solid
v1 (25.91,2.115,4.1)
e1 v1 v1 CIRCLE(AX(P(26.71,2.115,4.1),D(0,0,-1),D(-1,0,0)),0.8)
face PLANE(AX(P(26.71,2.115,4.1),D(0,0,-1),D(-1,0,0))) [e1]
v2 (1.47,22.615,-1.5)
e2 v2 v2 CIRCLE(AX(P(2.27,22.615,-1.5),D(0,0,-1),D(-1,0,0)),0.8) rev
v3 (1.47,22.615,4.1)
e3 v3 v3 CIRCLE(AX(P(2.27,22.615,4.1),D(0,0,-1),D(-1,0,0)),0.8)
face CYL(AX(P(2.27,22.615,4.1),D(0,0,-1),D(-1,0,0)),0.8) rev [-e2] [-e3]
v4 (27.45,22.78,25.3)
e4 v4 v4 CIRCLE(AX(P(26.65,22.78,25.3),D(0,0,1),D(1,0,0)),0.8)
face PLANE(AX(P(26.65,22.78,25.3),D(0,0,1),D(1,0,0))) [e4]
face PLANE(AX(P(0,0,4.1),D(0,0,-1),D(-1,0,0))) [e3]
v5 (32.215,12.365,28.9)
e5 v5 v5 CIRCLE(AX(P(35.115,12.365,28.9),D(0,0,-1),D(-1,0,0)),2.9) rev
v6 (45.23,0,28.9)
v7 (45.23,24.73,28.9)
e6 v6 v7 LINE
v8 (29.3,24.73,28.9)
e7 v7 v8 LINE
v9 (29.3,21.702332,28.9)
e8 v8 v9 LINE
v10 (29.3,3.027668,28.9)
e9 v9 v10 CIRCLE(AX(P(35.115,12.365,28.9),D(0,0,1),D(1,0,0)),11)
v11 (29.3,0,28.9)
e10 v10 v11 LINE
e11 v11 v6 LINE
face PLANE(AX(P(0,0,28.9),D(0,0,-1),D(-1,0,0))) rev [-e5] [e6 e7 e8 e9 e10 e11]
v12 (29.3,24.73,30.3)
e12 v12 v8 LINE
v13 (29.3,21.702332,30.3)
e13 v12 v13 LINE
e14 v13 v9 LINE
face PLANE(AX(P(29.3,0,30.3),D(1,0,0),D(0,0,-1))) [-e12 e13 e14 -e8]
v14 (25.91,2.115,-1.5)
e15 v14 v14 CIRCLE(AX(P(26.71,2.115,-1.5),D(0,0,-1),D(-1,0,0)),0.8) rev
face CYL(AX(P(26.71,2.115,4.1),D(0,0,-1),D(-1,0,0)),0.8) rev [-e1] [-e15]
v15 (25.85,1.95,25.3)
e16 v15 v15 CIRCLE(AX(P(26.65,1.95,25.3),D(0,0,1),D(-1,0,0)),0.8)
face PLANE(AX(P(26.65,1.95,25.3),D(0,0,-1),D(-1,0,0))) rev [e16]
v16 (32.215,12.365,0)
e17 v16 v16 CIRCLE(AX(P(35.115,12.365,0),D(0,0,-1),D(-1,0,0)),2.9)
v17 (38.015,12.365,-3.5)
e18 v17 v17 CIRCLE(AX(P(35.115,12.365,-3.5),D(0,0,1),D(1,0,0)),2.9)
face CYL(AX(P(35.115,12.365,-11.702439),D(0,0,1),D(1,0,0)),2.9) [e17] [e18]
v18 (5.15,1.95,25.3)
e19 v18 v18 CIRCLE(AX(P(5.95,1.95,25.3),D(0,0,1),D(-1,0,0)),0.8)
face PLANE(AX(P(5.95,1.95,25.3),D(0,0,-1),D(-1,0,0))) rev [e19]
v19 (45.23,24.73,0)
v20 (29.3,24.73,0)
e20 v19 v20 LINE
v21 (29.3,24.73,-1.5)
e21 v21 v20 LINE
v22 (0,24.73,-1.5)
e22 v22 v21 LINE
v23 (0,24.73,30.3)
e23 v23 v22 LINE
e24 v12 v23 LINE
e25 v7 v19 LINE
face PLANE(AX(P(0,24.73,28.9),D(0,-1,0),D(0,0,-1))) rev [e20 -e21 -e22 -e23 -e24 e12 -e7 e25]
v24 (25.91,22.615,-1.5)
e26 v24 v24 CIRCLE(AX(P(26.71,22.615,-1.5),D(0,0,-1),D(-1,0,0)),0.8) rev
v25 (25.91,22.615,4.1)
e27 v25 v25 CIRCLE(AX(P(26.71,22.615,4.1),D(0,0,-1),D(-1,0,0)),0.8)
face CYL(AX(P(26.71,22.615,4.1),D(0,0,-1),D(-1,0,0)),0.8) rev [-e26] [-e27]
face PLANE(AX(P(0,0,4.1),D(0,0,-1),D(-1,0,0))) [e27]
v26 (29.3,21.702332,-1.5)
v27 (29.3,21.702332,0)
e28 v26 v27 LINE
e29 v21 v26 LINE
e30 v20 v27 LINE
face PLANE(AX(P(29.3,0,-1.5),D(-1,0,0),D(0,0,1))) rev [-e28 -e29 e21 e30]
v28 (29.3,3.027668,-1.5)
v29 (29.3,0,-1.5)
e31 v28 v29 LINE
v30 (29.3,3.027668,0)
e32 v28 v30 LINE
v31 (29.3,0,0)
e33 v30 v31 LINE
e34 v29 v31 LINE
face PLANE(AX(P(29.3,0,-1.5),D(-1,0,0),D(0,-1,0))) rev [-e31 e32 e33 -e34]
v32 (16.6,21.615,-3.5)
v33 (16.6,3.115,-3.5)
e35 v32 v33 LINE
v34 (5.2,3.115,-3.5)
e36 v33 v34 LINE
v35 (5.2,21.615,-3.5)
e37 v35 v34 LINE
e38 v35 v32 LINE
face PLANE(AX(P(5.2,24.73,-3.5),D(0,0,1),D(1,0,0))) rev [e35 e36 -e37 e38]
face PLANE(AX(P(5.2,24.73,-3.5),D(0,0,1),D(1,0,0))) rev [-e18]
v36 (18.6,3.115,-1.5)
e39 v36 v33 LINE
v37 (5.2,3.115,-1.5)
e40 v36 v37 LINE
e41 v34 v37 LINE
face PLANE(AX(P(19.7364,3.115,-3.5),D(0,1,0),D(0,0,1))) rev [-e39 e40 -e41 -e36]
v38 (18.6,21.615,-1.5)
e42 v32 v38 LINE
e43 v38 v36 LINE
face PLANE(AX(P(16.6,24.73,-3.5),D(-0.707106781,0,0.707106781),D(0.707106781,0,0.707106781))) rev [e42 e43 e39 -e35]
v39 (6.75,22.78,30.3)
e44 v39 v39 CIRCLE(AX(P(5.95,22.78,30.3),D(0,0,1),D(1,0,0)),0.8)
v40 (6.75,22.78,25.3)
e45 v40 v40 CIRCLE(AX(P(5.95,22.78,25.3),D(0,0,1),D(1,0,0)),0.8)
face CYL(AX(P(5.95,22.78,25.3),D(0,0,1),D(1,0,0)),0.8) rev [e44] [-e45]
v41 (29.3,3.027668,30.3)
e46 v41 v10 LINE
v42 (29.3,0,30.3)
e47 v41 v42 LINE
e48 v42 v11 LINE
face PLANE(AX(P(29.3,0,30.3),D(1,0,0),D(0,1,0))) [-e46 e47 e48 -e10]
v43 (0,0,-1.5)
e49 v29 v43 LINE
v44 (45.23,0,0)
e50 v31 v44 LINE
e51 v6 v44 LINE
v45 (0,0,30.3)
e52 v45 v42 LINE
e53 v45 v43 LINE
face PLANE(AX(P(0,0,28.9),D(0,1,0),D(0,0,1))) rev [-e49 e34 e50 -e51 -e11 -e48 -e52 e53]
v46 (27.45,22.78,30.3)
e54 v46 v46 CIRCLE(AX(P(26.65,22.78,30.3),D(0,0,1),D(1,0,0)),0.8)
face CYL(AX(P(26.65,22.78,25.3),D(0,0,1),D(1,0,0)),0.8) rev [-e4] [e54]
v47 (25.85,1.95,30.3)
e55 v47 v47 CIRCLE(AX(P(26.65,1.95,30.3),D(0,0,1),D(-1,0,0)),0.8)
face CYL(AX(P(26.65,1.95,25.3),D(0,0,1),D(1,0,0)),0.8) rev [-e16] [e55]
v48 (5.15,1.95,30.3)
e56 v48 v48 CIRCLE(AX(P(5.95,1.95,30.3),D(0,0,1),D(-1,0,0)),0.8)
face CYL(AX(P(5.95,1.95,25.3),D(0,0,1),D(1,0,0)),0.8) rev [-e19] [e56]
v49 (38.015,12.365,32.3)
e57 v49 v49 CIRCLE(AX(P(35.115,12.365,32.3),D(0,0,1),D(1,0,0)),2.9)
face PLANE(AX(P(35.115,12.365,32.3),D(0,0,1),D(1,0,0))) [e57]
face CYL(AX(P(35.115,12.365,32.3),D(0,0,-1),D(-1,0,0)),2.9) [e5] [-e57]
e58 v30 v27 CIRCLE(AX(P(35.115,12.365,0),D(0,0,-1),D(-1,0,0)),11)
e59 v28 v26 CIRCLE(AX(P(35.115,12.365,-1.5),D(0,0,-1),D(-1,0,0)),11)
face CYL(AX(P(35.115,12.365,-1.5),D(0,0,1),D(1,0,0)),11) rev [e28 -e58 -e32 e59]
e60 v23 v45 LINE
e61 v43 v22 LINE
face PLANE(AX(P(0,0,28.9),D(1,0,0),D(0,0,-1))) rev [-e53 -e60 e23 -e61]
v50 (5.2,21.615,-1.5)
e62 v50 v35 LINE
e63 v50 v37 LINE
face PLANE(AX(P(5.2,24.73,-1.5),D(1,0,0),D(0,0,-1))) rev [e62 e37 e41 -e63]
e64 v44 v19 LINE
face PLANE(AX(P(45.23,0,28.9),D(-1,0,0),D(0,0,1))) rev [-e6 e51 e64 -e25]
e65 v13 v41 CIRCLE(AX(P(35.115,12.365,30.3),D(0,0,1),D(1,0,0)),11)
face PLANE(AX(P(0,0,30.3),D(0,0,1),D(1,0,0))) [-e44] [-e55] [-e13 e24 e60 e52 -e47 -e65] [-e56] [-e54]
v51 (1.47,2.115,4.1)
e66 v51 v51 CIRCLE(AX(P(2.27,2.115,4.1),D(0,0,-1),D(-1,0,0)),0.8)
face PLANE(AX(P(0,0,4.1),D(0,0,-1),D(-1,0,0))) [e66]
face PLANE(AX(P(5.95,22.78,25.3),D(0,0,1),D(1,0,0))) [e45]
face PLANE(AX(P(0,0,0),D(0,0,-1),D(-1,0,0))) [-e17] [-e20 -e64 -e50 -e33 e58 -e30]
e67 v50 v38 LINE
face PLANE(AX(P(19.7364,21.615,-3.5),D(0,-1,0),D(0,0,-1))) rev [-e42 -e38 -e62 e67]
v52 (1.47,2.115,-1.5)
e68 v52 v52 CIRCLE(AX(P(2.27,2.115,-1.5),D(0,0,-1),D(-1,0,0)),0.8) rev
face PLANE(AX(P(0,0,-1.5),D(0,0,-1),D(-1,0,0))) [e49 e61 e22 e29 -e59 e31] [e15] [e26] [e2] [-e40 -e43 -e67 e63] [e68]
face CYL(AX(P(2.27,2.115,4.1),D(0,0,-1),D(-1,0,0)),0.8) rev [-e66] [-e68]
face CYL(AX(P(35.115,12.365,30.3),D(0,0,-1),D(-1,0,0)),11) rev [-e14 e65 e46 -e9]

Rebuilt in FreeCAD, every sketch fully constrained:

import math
import FreeCAD as App
import Part
import Sketcher
from FreeCAD import Vector
Q = App.Units.Quantity

doc = App.newDocument("Part")
body = doc.addObject("PartDesign::Body", "Body")

sketch1 = body.newObject("Sketcher::SketchObject", "Sketch")
sketch1.AttachmentSupport = (doc.getObject("XY_Plane"), [""])
sketch1.MapMode = "FlatFace"
sketch1.addGeometry(Part.LineSegment(Vector(0, 25, 0), Vector(0, 0, 0)), False)
sketch1.addGeometry(Part.LineSegment(Vector(0, 0, 0), Vector(45, 0, 0)), False)
sketch1.addGeometry(Part.LineSegment(Vector(45, 0, 0), Vector(45, 25, 0)), False)
sketch1.addGeometry(Part.LineSegment(Vector(45, 25, 0), Vector(0, 25, 0)), False)
sketch1.addConstraint(Sketcher.Constraint("Coincident", 0, 2, 1, 1))
sketch1.addConstraint(Sketcher.Constraint("Coincident", 1, 2, 2, 1))
sketch1.addConstraint(Sketcher.Constraint("Coincident", 2, 2, 3, 1))
sketch1.addConstraint(Sketcher.Constraint("Coincident", 3, 2, 0, 1))
sketch1.addConstraint(Sketcher.Constraint("Vertical", 0))
sketch1.addConstraint(Sketcher.Constraint("Horizontal", 1))
sketch1.addConstraint(Sketcher.Constraint("Vertical", 2))
sketch1.addConstraint(Sketcher.Constraint("Horizontal", 3))
sketch1.addConstraint(Sketcher.Constraint("Coincident", 0, 2, -1, 1))
sketch1.addConstraint(Sketcher.Constraint("DistanceX", 1, 1, 1, 2, Q("45.23 mm")))
sketch1.addConstraint(Sketcher.Constraint("DistanceY", 0, 2, 0, 1, Q("24.73 mm")))
pad1 = body.newObject("PartDesign::Pad", "Pad")
pad1.Profile = sketch1
pad1.Length = 28.9

sketch2 = body.newObject("Sketcher::SketchObject", "Sketch001")
sketch2.AttachmentSupport = (doc.getObject("XY_Plane"), [""])
sketch2.MapMode = "FlatFace"
sketch2.AttachmentOffset = App.Placement(Vector(0, 0, 28.9), App.Rotation())
sketch2.addGeometry(Part.Circle(Vector(35.1, 12.4, 0), Vector(0, 0, 1), 2.9), False)
sketch2.addConstraint(Sketcher.Constraint("Diameter", 0, Q("5.8 mm")))
sketch2.addConstraint(Sketcher.Constraint("DistanceX", -1, 1, 0, 3, Q("35.115 mm")))
sketch2.addConstraint(Sketcher.Constraint("DistanceY", -1, 1, 0, 3, Q("12.365 mm")))
pad2 = body.newObject("PartDesign::Pad", "Pad001")
pad2.Profile = sketch2
pad2.Length = 3.4

sketch3 = body.newObject("Sketcher::SketchObject", "Sketch002")
sketch3.AttachmentSupport = (doc.getObject("XY_Plane"), [""])
sketch3.MapMode = "FlatFace"
sketch3.AttachmentOffset = App.Placement(Vector(0, 0, 28.9), App.Rotation())
sketch3.addGeometry(Part.LineSegment(Vector(29.3, 21.7, 0), Vector(29.3, 24.7, 0)), False)
sketch3.addGeometry(Part.LineSegment(Vector(29.3, 24.7, 0), Vector(0, 24.7, 0)), False)
sketch3.addGeometry(Part.LineSegment(Vector(0, 24.7, 0), Vector(0, 0, 0)), False)
sketch3.addGeometry(Part.LineSegment(Vector(0, 0, 0), Vector(29.3, 0, 0)), False)
sketch3.addGeometry(Part.LineSegment(Vector(29.3, 0, 0), Vector(29.3, 3, 0)), False)
sketch3.addGeometry(Part.ArcOfCircle(Part.Circle(Vector(35.1, 12.4, 0), Vector(0, 0, 1), 11), math.radians(122), math.radians(238)), False)
sketch3.addConstraint(Sketcher.Constraint("Coincident", 0, 2, 1, 1))
sketch3.addConstraint(Sketcher.Constraint("Coincident", 1, 2, 2, 1))
sketch3.addConstraint(Sketcher.Constraint("Coincident", 2, 2, 3, 1))
sketch3.addConstraint(Sketcher.Constraint("Coincident", 3, 2, 4, 1))
sketch3.addConstraint(Sketcher.Constraint("Coincident", 4, 2, 5, 2))
sketch3.addConstraint(Sketcher.Constraint("Coincident", 5, 1, 0, 1))
sketch3.addConstraint(Sketcher.Constraint("Vertical", 0))
sketch3.addConstraint(Sketcher.Constraint("Horizontal", 1))
sketch3.addConstraint(Sketcher.Constraint("Vertical", 2))
sketch3.addConstraint(Sketcher.Constraint("Horizontal", 3))
sketch3.addConstraint(Sketcher.Constraint("Vertical", 4))
sketch3.addConstraint(Sketcher.Constraint("Coincident", 2, 2, -1, 1))
sketch3.addConstraint(Sketcher.Constraint("Vertical", 0, 2, 3, 2))
sketch3.addConstraint(Sketcher.Constraint("Equal", 0, 4))
sketch3.addConstraint(Sketcher.Constraint("Radius", 5, Q("11 mm")))
sketch3.addConstraint(Sketcher.Constraint("DistanceX", 1, 2, 1, 1, Q("29.3 mm")))
sketch3.addConstraint(Sketcher.Constraint("DistanceY", 2, 2, 2, 1, Q("24.73 mm")))
sketch3.addConstraint(Sketcher.Constraint("DistanceX", -1, 1, 5, 3, Q("35.115 mm")))
pad3 = body.newObject("PartDesign::Pad", "Pad002")
pad3.Profile = sketch3
pad3.Length = 1.4

sketch4 = body.newObject("Sketcher::SketchObject", "Sketch003")
sketch4.AttachmentSupport = (doc.getObject("XY_Plane"), [""])
sketch4.MapMode = "FlatFace"
sketch4.AttachmentOffset = App.Placement(Vector(0, 0, 30.3), App.Rotation())
sketch4.addGeometry(Part.Circle(Vector(6, 22.8, 0), Vector(0, 0, 1), 0.8), False)
sketch4.addGeometry(Part.Circle(Vector(26.6, 22.8, 0), Vector(0, 0, 1), 0.8), False)
sketch4.addGeometry(Part.Circle(Vector(26.6, 1.9, 0), Vector(0, 0, 1), 0.8), False)
sketch4.addGeometry(Part.Circle(Vector(6, 1.9, 0), Vector(0, 0, 1), 0.8), False)
sketch4.addConstraint(Sketcher.Constraint("Equal", 0, 1))
sketch4.addConstraint(Sketcher.Constraint("Equal", 1, 2))
sketch4.addConstraint(Sketcher.Constraint("Equal", 2, 3))
sketch4.addConstraint(Sketcher.Constraint("Horizontal", 0, 3, 1, 3))
sketch4.addConstraint(Sketcher.Constraint("Horizontal", 2, 3, 3, 3))
sketch4.addConstraint(Sketcher.Constraint("Vertical", 1, 3, 2, 3))
sketch4.addConstraint(Sketcher.Constraint("Vertical", 0, 3, 3, 3))
sketch4.addConstraint(Sketcher.Constraint("Diameter", 0, Q("1.6 mm")))
sketch4.addConstraint(Sketcher.Constraint("DistanceX", 0, 3, 1, 3, Q("20.7 mm")))
sketch4.addConstraint(Sketcher.Constraint("DistanceX", -1, 1, 0, 3, Q("5.95 mm")))
sketch4.addConstraint(Sketcher.Constraint("DistanceY", -1, 1, 0, 3, Q("22.78 mm")))
sketch4.addConstraint(Sketcher.Constraint("DistanceY", -1, 1, 2, 3, Q("1.95 mm")))
pocket1 = body.newObject("PartDesign::Pocket", "Pocket")
pocket1.Profile = sketch4
pocket1.Length = 5

sketch5 = body.newObject("Sketcher::SketchObject", "Sketch004")
sketch5.AttachmentSupport = (doc.getObject("XY_Plane"), [""])
sketch5.MapMode = "FlatFace"
sketch5.addGeometry(Part.Circle(Vector(26.7, 22.6, 0), Vector(0, 0, 1), 0.8), False)
sketch5.addGeometry(Part.Circle(Vector(2.3, 22.6, 0), Vector(0, 0, 1), 0.8), False)
sketch5.addGeometry(Part.Circle(Vector(2.3, 2.1, 0), Vector(0, 0, 1), 0.8), False)
sketch5.addGeometry(Part.Circle(Vector(26.7, 2.1, 0), Vector(0, 0, 1), 0.8), False)
sketch5.addConstraint(Sketcher.Constraint("Equal", 0, 1))
sketch5.addConstraint(Sketcher.Constraint("Equal", 1, 2))
sketch5.addConstraint(Sketcher.Constraint("Equal", 2, 3))
sketch5.addConstraint(Sketcher.Constraint("Horizontal", 0, 3, 1, 3))
sketch5.addConstraint(Sketcher.Constraint("Horizontal", 2, 3, 3, 3))
sketch5.addConstraint(Sketcher.Constraint("Vertical", 1, 3, 2, 3))
sketch5.addConstraint(Sketcher.Constraint("Vertical", 0, 3, 3, 3))
sketch5.addConstraint(Sketcher.Constraint("Diameter", 0, Q("1.6 mm")))
sketch5.addConstraint(Sketcher.Constraint("DistanceY", 2, 3, 1, 3, Q("20.5 mm")))
sketch5.addConstraint(Sketcher.Constraint("DistanceX", -1, 1, 0, 3, Q("26.71 mm")))
sketch5.addConstraint(Sketcher.Constraint("DistanceX", -1, 1, 1, 3, Q("2.27 mm")))
sketch5.addConstraint(Sketcher.Constraint("DistanceY", -1, 1, 0, 3, Q("22.615 mm")))
pocket2 = body.newObject("PartDesign::Pocket", "Pocket001")
pocket2.Profile = sketch5
pocket2.Length = 4.1
pocket2.Reversed = True

sketch6 = body.newObject("Sketcher::SketchObject", "Sketch005")
sketch6.AttachmentSupport = (doc.getObject("XY_Plane"), [""])
sketch6.MapMode = "FlatFace"
sketch6.AttachmentOffset = App.Placement(Vector(0, 0, -1.5), App.Rotation())
sketch6.addGeometry(Part.LineSegment(Vector(0, 24.7, 0), Vector(29.3, 24.7, 0)), False)
sketch6.addGeometry(Part.LineSegment(Vector(29.3, 24.7, 0), Vector(29.3, 21.7, 0)), False)
sketch6.addGeometry(Part.ArcOfCircle(Part.Circle(Vector(35.1, 12.4, 0), Vector(0, 0, 1), 11), math.radians(122), math.radians(238)), False)
sketch6.addGeometry(Part.LineSegment(Vector(29.3, 3, 0), Vector(29.3, 0, 0)), False)
sketch6.addGeometry(Part.LineSegment(Vector(29.3, 0, 0), Vector(0, 0, 0)), False)
sketch6.addGeometry(Part.LineSegment(Vector(0, 0, 0), Vector(0, 24.7, 0)), False)
sketch6.addGeometry(Part.Circle(Vector(26.7, 2.1, 0), Vector(0, 0, 1), 0.8), False)
sketch6.addGeometry(Part.Circle(Vector(2.3, 2.1, 0), Vector(0, 0, 1), 0.8), False)
sketch6.addGeometry(Part.Circle(Vector(26.7, 22.6, 0), Vector(0, 0, 1), 0.8), False)
sketch6.addGeometry(Part.Circle(Vector(2.3, 22.6, 0), Vector(0, 0, 1), 0.8), False)
sketch6.addConstraint(Sketcher.Constraint("Coincident", 0, 2, 1, 1))
sketch6.addConstraint(Sketcher.Constraint("Coincident", 1, 2, 2, 1))
sketch6.addConstraint(Sketcher.Constraint("Coincident", 2, 2, 3, 1))
sketch6.addConstraint(Sketcher.Constraint("Coincident", 3, 2, 4, 1))
sketch6.addConstraint(Sketcher.Constraint("Coincident", 4, 2, 5, 1))
sketch6.addConstraint(Sketcher.Constraint("Coincident", 5, 2, 0, 1))
sketch6.addConstraint(Sketcher.Constraint("Horizontal", 0))
sketch6.addConstraint(Sketcher.Constraint("Vertical", 1))
sketch6.addConstraint(Sketcher.Constraint("Vertical", 3))
sketch6.addConstraint(Sketcher.Constraint("Horizontal", 4))
sketch6.addConstraint(Sketcher.Constraint("Vertical", 5))
sketch6.addConstraint(Sketcher.Constraint("Coincident", 4, 2, -1, 1))
sketch6.addConstraint(Sketcher.Constraint("Equal", 6, 7))
sketch6.addConstraint(Sketcher.Constraint("Equal", 7, 8))
sketch6.addConstraint(Sketcher.Constraint("Equal", 8, 9))
sketch6.addConstraint(Sketcher.Constraint("Horizontal", 6, 3, 7, 3))
sketch6.addConstraint(Sketcher.Constraint("Horizontal", 8, 3, 9, 3))
sketch6.addConstraint(Sketcher.Constraint("Vertical", 6, 3, 8, 3))
sketch6.addConstraint(Sketcher.Constraint("Vertical", 7, 3, 9, 3))
sketch6.addConstraint(Sketcher.Constraint("Vertical", 1, 2, 2, 2))
sketch6.addConstraint(Sketcher.Constraint("Equal", 1, 3))
sketch6.addConstraint(Sketcher.Constraint("Radius", 2, Q("11 mm")))
sketch6.addConstraint(Sketcher.Constraint("Diameter", 6, Q("1.6 mm")))
sketch6.addConstraint(Sketcher.Constraint("DistanceX", 0, 1, 0, 2, Q("29.3 mm")))
sketch6.addConstraint(Sketcher.Constraint("DistanceY", 5, 1, 5, 2, Q("24.73 mm")))
sketch6.addConstraint(Sketcher.Constraint("DistanceY", 6, 3, 8, 3, Q("20.5 mm")))
sketch6.addConstraint(Sketcher.Constraint("DistanceX", -1, 1, 6, 3, Q("26.71 mm")))
sketch6.addConstraint(Sketcher.Constraint("DistanceX", -1, 1, 7, 3, Q("2.27 mm")))
sketch6.addConstraint(Sketcher.Constraint("DistanceY", 6, 3, 2, 3, Q("10.25 mm")))
sketch6.addConstraint(Sketcher.Constraint("DistanceX", -1, 1, 2, 3, Q("35.115 mm")))
pad4 = body.newObject("PartDesign::Pad", "Pad003")
pad4.Profile = sketch6
pad4.Length = 1.5

sketch7 = body.newObject("Sketcher::SketchObject", "Sketch006")
sketch7.AttachmentSupport = (doc.getObject("XZ_Plane"), [""])
sketch7.MapMode = "FlatFace"
sketch7.addGeometry(Part.LineSegment(Vector(5.2, -3.5, 0), Vector(5.2, -1.5, 0)), False)
sketch7.addGeometry(Part.LineSegment(Vector(5.2, -1.5, 0), Vector(18.6, -1.5, 0)), False)
sketch7.addGeometry(Part.LineSegment(Vector(18.6, -1.5, 0), Vector(16.6, -3.5, 0)), False)
sketch7.addGeometry(Part.LineSegment(Vector(16.6, -3.5, 0), Vector(5.2, -3.5, 0)), False)
sketch7.addConstraint(Sketcher.Constraint("Coincident", 0, 2, 1, 1))
sketch7.addConstraint(Sketcher.Constraint("Coincident", 1, 2, 2, 1))
sketch7.addConstraint(Sketcher.Constraint("Coincident", 2, 2, 3, 1))
sketch7.addConstraint(Sketcher.Constraint("Coincident", 3, 2, 0, 1))
sketch7.addConstraint(Sketcher.Constraint("Vertical", 0))
sketch7.addConstraint(Sketcher.Constraint("Horizontal", 1))
sketch7.addConstraint(Sketcher.Constraint("Horizontal", 3))
sketch7.addConstraint(Sketcher.Constraint("DistanceY", 0, 1, 0, 2, Q("2 mm")))
sketch7.addConstraint(Sketcher.Constraint("Angle", 2, Q("-135 deg")))
sketch7.addConstraint(Sketcher.Constraint("DistanceX", 1, 1, 1, 2, Q("13.4 mm")))
sketch7.addConstraint(Sketcher.Constraint("DistanceX", -1, 1, 0, 2, Q("5.2 mm")))
sketch7.addConstraint(Sketcher.Constraint("DistanceY", 0, 2, -1, 1, Q("1.5 mm")))
pad5 = body.newObject("PartDesign::Pad", "Pad004")
pad5.Profile = sketch7
pad5.Length = 24.73
pad5.Reversed = True

sketch8 = body.newObject("Sketcher::SketchObject", "Sketch007")
sketch8.AttachmentSupport = (doc.getObject("XY_Plane"), [""])
sketch8.MapMode = "FlatFace"
sketch8.AttachmentOffset = App.Placement(Vector(0, 0, -3.5), App.Rotation())
sketch8.addGeometry(Part.Circle(Vector(35.1, 12.4, 0), Vector(0, 0, 1), 2.9), False)
sketch8.addConstraint(Sketcher.Constraint("Diameter", 0, Q("5.8 mm")))
sketch8.addConstraint(Sketcher.Constraint("DistanceX", -1, 1, 0, 3, Q("35.115 mm")))
sketch8.addConstraint(Sketcher.Constraint("DistanceY", -1, 1, 0, 3, Q("12.365 mm")))
pad6 = body.newObject("PartDesign::Pad", "Pad005")
pad6.Profile = sketch8
pad6.Length = 3.5

sketch9 = body.newObject("Sketcher::SketchObject", "Sketch008")
sketch9.AttachmentSupport = (doc.getObject("XY_Plane"), [""])
sketch9.MapMode = "FlatFace"
sketch9.AttachmentOffset = App.Placement(Vector(0, 0, -1.5), App.Rotation())
sketch9.addGeometry(Part.LineSegment(Vector(30, 32, 0), Vector(30, -7, 0)), False)
sketch9.addGeometry(Part.LineSegment(Vector(30, -7, 0), Vector(-10, -7, 0)), False)
sketch9.addGeometry(Part.LineSegment(Vector(-10, -7, 0), Vector(-10, 32, 0)), False)
sketch9.addGeometry(Part.LineSegment(Vector(-10, 32, 0), Vector(30, 32, 0)), False)
sketch9.addGeometry(Part.LineSegment(Vector(0, 3, 0), Vector(20, 3, 0)), False)
sketch9.addGeometry(Part.LineSegment(Vector(20, 3, 0), Vector(20, 22, 0)), False)
sketch9.addGeometry(Part.LineSegment(Vector(20, 22, 0), Vector(0, 22, 0)), False)
sketch9.addGeometry(Part.LineSegment(Vector(0, 22, 0), Vector(0, 3, 0)), False)
sketch9.addConstraint(Sketcher.Constraint("Coincident", 0, 2, 1, 1))
sketch9.addConstraint(Sketcher.Constraint("Coincident", 1, 2, 2, 1))
sketch9.addConstraint(Sketcher.Constraint("Coincident", 2, 2, 3, 1))
sketch9.addConstraint(Sketcher.Constraint("Coincident", 3, 2, 0, 1))
sketch9.addConstraint(Sketcher.Constraint("Coincident", 4, 2, 5, 1))
sketch9.addConstraint(Sketcher.Constraint("Coincident", 5, 2, 6, 1))
sketch9.addConstraint(Sketcher.Constraint("Coincident", 6, 2, 7, 1))
sketch9.addConstraint(Sketcher.Constraint("Coincident", 7, 2, 4, 1))
sketch9.addConstraint(Sketcher.Constraint("Vertical", 0))
sketch9.addConstraint(Sketcher.Constraint("Horizontal", 1))
sketch9.addConstraint(Sketcher.Constraint("Vertical", 2))
sketch9.addConstraint(Sketcher.Constraint("Horizontal", 3))
sketch9.addConstraint(Sketcher.Constraint("Horizontal", 4))
sketch9.addConstraint(Sketcher.Constraint("Vertical", 5))
sketch9.addConstraint(Sketcher.Constraint("Horizontal", 6))
sketch9.addConstraint(Sketcher.Constraint("Vertical", 7))
sketch9.addConstraint(Sketcher.Constraint("PointOnObject", 6, 2, -2))
sketch9.addConstraint(Sketcher.Constraint("DistanceY", 0, 2, 0, 1, Q("38.5 mm")))
sketch9.addConstraint(Sketcher.Constraint("DistanceY", 5, 1, 5, 2, Q("18.5 mm")))
sketch9.addConstraint(Sketcher.Constraint("DistanceX", 1, 2, -1, 1, Q("10 mm")))
sketch9.addConstraint(Sketcher.Constraint("DistanceX", 4, 2, 0, 2, Q("10 mm")))
sketch9.addConstraint(Sketcher.Constraint("DistanceY", 0, 2, 4, 2, Q("10 mm")))
sketch9.addConstraint(Sketcher.Constraint("DistanceX", 1, 2, 1, 1, Q("39.7364 mm")))
sketch9.addConstraint(Sketcher.Constraint("DistanceY", 0, 2, -1, 1, Q("6.885 mm")))
pocket3 = body.newObject("PartDesign::Pocket", "Pocket002")
pocket3.Profile = sketch9
pocket3.Type = "ThroughAll"

doc.recompute()
